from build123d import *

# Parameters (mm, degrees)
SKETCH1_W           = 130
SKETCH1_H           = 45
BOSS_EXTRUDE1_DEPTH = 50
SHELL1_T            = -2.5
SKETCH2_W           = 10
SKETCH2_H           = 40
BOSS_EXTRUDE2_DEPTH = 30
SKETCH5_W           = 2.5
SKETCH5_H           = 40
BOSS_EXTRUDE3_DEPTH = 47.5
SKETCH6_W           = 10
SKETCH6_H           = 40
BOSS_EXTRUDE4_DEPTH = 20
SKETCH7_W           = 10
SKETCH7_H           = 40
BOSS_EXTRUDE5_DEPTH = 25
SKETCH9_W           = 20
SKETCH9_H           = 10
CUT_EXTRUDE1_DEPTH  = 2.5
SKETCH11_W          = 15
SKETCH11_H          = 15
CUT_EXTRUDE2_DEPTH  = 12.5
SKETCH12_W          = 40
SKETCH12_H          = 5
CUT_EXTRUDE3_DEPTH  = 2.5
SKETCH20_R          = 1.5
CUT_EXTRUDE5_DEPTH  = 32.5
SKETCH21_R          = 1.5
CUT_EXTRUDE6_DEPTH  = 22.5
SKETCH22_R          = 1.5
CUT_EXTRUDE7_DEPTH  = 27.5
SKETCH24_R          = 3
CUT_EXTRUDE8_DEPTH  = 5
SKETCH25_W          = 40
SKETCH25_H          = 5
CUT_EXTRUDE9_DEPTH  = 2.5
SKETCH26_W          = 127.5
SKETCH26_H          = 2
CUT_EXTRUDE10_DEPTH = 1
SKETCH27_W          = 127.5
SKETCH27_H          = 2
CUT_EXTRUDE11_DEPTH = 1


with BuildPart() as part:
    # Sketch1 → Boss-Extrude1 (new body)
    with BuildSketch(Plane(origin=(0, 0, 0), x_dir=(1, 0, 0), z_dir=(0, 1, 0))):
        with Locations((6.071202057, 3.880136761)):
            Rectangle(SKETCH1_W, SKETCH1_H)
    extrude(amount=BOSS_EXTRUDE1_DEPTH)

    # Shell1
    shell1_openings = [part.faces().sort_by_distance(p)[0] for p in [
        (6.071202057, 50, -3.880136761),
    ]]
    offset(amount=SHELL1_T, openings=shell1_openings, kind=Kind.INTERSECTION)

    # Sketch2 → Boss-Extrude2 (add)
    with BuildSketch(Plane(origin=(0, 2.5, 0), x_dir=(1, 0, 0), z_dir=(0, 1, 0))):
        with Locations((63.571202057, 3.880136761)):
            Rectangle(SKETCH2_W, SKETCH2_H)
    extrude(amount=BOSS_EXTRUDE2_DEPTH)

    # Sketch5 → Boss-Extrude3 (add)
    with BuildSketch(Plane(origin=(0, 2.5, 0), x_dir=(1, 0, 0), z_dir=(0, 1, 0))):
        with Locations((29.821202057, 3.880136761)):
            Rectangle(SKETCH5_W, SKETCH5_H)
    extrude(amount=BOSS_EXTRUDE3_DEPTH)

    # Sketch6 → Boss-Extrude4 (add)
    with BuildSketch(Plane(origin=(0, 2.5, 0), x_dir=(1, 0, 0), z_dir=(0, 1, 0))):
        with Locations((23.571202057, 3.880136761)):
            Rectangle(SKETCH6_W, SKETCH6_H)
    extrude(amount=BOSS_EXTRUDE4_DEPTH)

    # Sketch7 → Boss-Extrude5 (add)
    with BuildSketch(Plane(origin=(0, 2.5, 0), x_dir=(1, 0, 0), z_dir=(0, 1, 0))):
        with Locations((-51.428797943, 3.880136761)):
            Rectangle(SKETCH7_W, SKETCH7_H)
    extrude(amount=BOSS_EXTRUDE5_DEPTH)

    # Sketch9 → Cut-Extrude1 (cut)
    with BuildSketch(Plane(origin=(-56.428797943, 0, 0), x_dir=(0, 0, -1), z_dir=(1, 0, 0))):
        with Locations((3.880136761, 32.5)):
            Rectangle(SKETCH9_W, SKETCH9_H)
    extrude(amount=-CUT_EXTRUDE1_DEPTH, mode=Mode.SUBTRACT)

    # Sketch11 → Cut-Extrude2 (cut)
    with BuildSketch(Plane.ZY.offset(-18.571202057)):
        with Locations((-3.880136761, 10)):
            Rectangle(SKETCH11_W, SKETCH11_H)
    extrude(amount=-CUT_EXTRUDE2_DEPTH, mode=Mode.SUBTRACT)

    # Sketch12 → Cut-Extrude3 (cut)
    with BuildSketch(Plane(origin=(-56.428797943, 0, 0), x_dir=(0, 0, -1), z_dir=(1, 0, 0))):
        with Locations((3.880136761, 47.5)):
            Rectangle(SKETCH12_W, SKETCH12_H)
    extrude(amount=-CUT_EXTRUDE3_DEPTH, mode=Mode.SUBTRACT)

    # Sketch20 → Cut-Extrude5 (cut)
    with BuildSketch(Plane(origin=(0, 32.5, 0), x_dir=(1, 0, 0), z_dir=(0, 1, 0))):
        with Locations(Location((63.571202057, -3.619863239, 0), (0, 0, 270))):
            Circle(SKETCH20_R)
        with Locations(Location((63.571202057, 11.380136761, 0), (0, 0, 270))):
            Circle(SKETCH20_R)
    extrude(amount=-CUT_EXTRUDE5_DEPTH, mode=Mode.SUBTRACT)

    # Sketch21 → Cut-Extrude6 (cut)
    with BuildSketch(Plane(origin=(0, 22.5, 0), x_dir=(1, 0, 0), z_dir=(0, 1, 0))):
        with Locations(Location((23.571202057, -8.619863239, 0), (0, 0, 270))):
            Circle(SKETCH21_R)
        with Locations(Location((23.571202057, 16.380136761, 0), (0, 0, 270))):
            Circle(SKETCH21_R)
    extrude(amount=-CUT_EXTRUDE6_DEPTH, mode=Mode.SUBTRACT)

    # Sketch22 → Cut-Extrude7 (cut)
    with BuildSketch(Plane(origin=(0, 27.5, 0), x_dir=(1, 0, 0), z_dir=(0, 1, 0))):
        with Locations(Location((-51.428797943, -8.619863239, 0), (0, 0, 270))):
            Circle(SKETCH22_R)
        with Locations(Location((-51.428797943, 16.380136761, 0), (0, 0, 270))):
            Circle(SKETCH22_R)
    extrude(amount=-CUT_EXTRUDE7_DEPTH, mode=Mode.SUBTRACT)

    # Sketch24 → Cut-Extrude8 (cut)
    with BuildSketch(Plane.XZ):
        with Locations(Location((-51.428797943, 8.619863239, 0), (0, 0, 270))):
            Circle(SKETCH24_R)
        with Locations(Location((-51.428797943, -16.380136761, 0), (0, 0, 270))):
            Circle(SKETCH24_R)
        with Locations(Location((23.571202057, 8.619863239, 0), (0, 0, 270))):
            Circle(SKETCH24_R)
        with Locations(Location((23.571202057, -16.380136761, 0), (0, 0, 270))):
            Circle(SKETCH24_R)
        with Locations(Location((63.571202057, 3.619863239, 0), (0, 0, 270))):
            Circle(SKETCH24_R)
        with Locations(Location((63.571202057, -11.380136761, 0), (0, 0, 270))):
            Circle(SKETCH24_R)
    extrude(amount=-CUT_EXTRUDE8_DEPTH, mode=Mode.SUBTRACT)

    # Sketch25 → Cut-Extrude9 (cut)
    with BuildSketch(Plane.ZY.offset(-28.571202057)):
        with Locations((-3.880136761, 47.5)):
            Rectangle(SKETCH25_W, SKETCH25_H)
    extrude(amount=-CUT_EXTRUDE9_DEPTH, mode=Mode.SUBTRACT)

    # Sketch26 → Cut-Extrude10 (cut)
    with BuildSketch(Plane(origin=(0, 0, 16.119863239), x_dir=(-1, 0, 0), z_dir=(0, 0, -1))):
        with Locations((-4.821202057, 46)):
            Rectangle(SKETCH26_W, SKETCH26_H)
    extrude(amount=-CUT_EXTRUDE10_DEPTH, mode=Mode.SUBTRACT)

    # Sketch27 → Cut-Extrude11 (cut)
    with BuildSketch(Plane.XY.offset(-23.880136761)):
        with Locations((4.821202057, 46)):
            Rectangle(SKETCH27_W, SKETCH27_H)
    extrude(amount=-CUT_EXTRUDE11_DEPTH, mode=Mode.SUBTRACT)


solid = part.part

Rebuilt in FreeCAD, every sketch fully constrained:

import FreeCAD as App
import Part
import Sketcher

V = App.Vector


def faces_at(feature, points):
    """Names of the faces that lie closest to the given points."""
    faces = feature.Shape.Faces
    near = lambda p: min(range(len(faces)), key=lambda i: faces[i].distToShape(Part.Vertex(*p))[0])
    return sorted({f"Face{near(p) + 1}" for p in points})


def add_polygon(sketch, points):
    """Adds a closed chain of lines whose ends are joined by coincident constraints."""
    first, n = sketch.GeometryCount, len(points)
    for a, b in zip(points, points[1:] + points[:1]):
        sketch.addGeometry(Part.LineSegment(App.Vector(*a, 0), App.Vector(*b, 0)), False)
    for i in range(n):
        sketch.addConstraint(Sketcher.Constraint("Coincident", first + i, 2, first + (i + 1) % n, 1))

doc = App.newDocument("Part")
params = doc.addObject("Spreadsheet::Sheet", "Params")
for row, (alias, value) in enumerate([
    ("sketch1_width", "130 mm"),
    ("sketch1_height", "45 mm"),
    ("pad1_length", "50 mm"),
    ("thickness_wall", "2.5 mm"),
    ("sketch2_width", "10 mm"),
    ("sketch2_height", "40 mm"),
    ("pad2_length", "30 mm"),
    ("sketch3_height", "40 mm"),
    ("sketch3_width", "2.5 mm"),
    ("pad3_length", "47.5 mm"),
    ("sketch4_width", "10 mm"),
    ("sketch4_height", "40 mm"),
    ("pad4_length", "20 mm"),
    ("sketch5_width", "10 mm"),
    ("sketch5_height", "40 mm"),
    ("pad5_length", "25 mm"),
    ("sketch6_width", "10 mm"),
    ("sketch6_height", "20 mm"),
    ("pocket1_length", "2.5 mm"),
    ("sketch7_width", "15 mm"),
    ("pocket2_length", "12.5 mm"),
    ("sketch8_width", "5 mm"),
    ("sketch8_height", "40 mm"),
    ("pocket3_length", "2.5 mm"),
    ("sketch9_diameter", "3 mm"),
    ("pocket4_length", "32.5 mm"),
    ("sketch10_diameter", "3 mm"),
    ("pocket5_length", "22.5 mm"),
    ("sketch11_diameter", "3 mm"),
    ("pocket6_length", "27.5 mm"),
    ("sketch12_diameter", "6 mm"),
    ("pocket7_length", "5 mm"),
    ("sketch13_width", "5 mm"),
    ("sketch13_height", "40 mm"),
    ("pocket8_length", "2.5 mm"),
    ("sketch14_height", "2 mm"),
    ("sketch14_width", "127.5 mm"),
    ("pocket9_length", "1 mm"),
    ("sketch15_height", "2 mm"),
    ("sketch15_width", "127.5 mm"),
    ("pocket10_length", "1 mm"),
], start=1):
    params.set(f"A{row}", alias)
    params.set(f"B{row}", "=" + value)
    params.setAlias(f"B{row}", alias)

body = doc.addObject("PartDesign::Body", "Body")

sketch1 = body.newObject("Sketcher::SketchObject", "Sketch")
sketch1.AttachmentSupport = (doc.getObject("XZ_Plane"), [""])
sketch1.MapMode = "FlatFace"
add_polygon(sketch1, [(-59, -26), (-59, 19), (71, 19), (71, -26)])
sketch1.addConstraint([
    Sketcher.Constraint("Vertical", 0),
    Sketcher.Constraint("Horizontal", 1),
    Sketcher.Constraint("Vertical", 2),
    Sketcher.Constraint("Horizontal", 3),
    Sketcher.Constraint("DistanceX", 1, 1, 1, 2, 130.0),
    Sketcher.Constraint("DistanceY", 0, 1, 0, 2, 45.0),
    Sketcher.Constraint("DistanceX", 0, 2, -1, 1, 58.928798),
    Sketcher.Constraint("DistanceY", -1, 1, 0, 2, 18.619863),
])
sketch1.setExpression("Constraints[8]", "Params.sketch1_width")
sketch1.setExpression("Constraints[9]", "Params.sketch1_height")
pad1 = body.newObject("PartDesign::Pad", "Pad")
pad1.Profile = sketch1
pad1.setExpression("Length", "Params.pad1_length")
pad1.Reversed = True
doc.recompute()

thickness = body.newObject("PartDesign::Thickness", "Thickness")
thickness.Base = (pad1, faces_at(pad1, [(6.071, 50, -3.88)]))
thickness.setExpression("Value", "Params.thickness_wall")
thickness.Reversed = True
thickness.Join = "Intersection"

sketch2 = body.newObject("Sketcher::SketchObject", "Sketch001")
sketch2.AttachmentSupport = (doc.getObject("XZ_Plane"), [""])
sketch2.MapMode = "FlatFace"
sketch2.AttachmentOffset = App.Placement(V(0, 0, -2.5), App.Rotation())
add_polygon(sketch2, [(59, -24), (59, 16), (69, 16), (69, -24)])
sketch2.addConstraint([
    Sketcher.Constraint("Vertical", 0),
    Sketcher.Constraint("Horizontal", 1),
    Sketcher.Constraint("Vertical", 2),
    Sketcher.Constraint("Horizontal", 3),
    Sketcher.Constraint("DistanceX", 1, 1, 1, 2, 10.0),
    Sketcher.Constraint("DistanceY", 0, 1, 0, 2, 40.0),
    Sketcher.Constraint("DistanceX", -1, 1, 0, 2, 58.571202),
    Sketcher.Constraint("DistanceY", -1, 1, 0, 2, 16.119863),
])
sketch2.setExpression("Constraints[8]", "Params.sketch2_width")
sketch2.setExpression("Constraints[9]", "Params.sketch2_height")
pad2 = body.newObject("PartDesign::Pad", "Pad001")
pad2.Profile = sketch2
pad2.setExpression("Length", "Params.pad2_length")
pad2.Reversed = True

sketch3 = body.newObject("Sketcher::SketchObject", "Sketch002")
sketch3.AttachmentSupport = (doc.getObject("XZ_Plane"), [""])
sketch3.MapMode = "FlatFace"
sketch3.AttachmentOffset = App.Placement(V(0, 0, -2.5), App.Rotation())
add_polygon(sketch3, [(28.6, -23.9), (28.6, 16.1), (31.1, 16.1), (31.1, -23.9)])
sketch3.addConstraint([
    Sketcher.Constraint("Vertical", 0),
    Sketcher.Constraint("Horizontal", 1),
    Sketcher.Constraint("Vertical", 2),
    Sketcher.Constraint("Horizontal", 3),
    Sketcher.Constraint("DistanceY", 0, 1, 0, 2, 40.0),
    Sketcher.Constraint("DistanceX", 1, 1, 1, 2, 2.5),
    Sketcher.Constraint("DistanceX", -1, 1, 0, 2, 28.571202),
    Sketcher.Constraint("DistanceY", -1, 1, 0, 2, 16.119863),
])
sketch3.setExpression("Constraints[8]", "Params.sketch3_height")
sketch3.setExpression("Constraints[9]", "Params.sketch3_width")
pad3 = body.newObject("PartDesign::Pad", "Pad002")
pad3.Profile = sketch3
pad3.setExpression("Length", "Params.pad3_length")
pad3.Reversed = True

sketch4 = body.newObject("Sketcher::SketchObject", "Sketch003")
sketch4.AttachmentSupport = (doc.getObject("XZ_Plane"), [""])
sketch4.MapMode = "FlatFace"
sketch4.AttachmentOffset = App.Placement(V(0, 0, -2.5), App.Rotation())
add_polygon(sketch4, [(19, -24), (19, 16), (29, 16), (29, -24)])
sketch4.addConstraint([
    Sketcher.Constraint("Vertical", 0),
    Sketcher.Constraint("Horizontal", 1),
    Sketcher.Constraint("Vertical", 2),
    Sketcher.Constraint("Horizontal", 3),
    Sketcher.Constraint("DistanceX", 1, 1, 1, 2, 10.0),
    Sketcher.Constraint("DistanceY", 0, 1, 0, 2, 40.0),
    Sketcher.Constraint("DistanceX", -1, 1, 0, 2, 18.571202),
    Sketcher.Constraint("DistanceY", -1, 1, 0, 2, 16.119863),
])
sketch4.setExpression("Constraints[8]", "Params.sketch4_width")
sketch4.setExpression("Constraints[9]", "Params.sketch4_height")
pad4 = body.newObject("PartDesign::Pad", "Pad003")
pad4.Profile = sketch4
pad4.setExpression("Length", "Params.pad4_length")
pad4.Reversed = True

sketch5 = body.newObject("Sketcher::SketchObject", "Sketch004")
sketch5.AttachmentSupport = (doc.getObject("XZ_Plane"), [""])
sketch5.MapMode = "FlatFace"
sketch5.AttachmentOffset = App.Placement(V(0, 0, -2.5), App.Rotation())
add_polygon(sketch5, [(-56, -24), (-56, 16), (-46, 16), (-46, -24)])
sketch5.addConstraint([
    Sketcher.Constraint("Vertical", 0),
    Sketcher.Constraint("Horizontal", 1),
    Sketcher.Constraint("Vertical", 2),
    Sketcher.Constraint("Horizontal", 3),
    Sketcher.Constraint("DistanceX", 1, 1, 1, 2, 10.0),
    Sketcher.Constraint("DistanceY", 0, 1, 0, 2, 40.0),
    Sketcher.Constraint("DistanceX", 0, 2, -1, 1, 56.428798),
    Sketcher.Constraint("DistanceY", -1, 1, 0, 2, 16.119863),
])
sketch5.setExpression("Constraints[8]", "Params.sketch5_width")
sketch5.setExpression("Constraints[9]", "Params.sketch5_height")
pad5 = body.newObject("PartDesign::Pad", "Pad004")
pad5.Profile = sketch5
pad5.setExpression("Length", "Params.pad5_length")
pad5.Reversed = True

sketch6 = body.newObject("Sketcher::SketchObject", "Sketch005")
sketch6.AttachmentSupport = (doc.getObject("YZ_Plane"), [""])
sketch6.MapMode = "FlatFace"
sketch6.AttachmentOffset = App.Placement(V(0, 0, -56.428798), App.Rotation())
add_polygon(sketch6, [(38, 6), (28, 6), (28, -14), (38, -14)])
sketch6.addConstraint([
    Sketcher.Constraint("Horizontal", 0),
    Sketcher.Constraint("Vertical", 1),
    Sketcher.Constraint("Horizontal", 2),
    Sketcher.Constraint("Vertical", 3),
    Sketcher.Constraint("DistanceX", 0, 2, 0, 1, 10.0),
    Sketcher.Constraint("DistanceY", 1, 2, 1, 1, 20.0),
    Sketcher.Constraint("DistanceX", -1, 1, 0, 2, 27.5),
    Sketcher.Constraint("DistanceY", -1, 1, 0, 2, 6.119863),
])
sketch6.setExpression("Constraints[8]", "Params.sketch6_width")
sketch6.setExpression("Constraints[9]", "Params.sketch6_height")
pocket1 = body.newObject("PartDesign::Pocket", "Pocket")
pocket1.Profile = sketch6
pocket1.setExpression("Length", "Params.pocket1_length")

sketch7 = body.newObject("Sketcher::SketchObject", "Sketch006")
sketch7.AttachmentSupport = (doc.getObject("YZ_Plane"), [""])
sketch7.MapMode = "FlatFace"
sketch7.AttachmentOffset = App.Placement(V(0, 0, 18.571202), App.Rotation())
add_polygon(sketch7, [(18, -11), (2, -11), (2, 4), (18, 4)])
sketch7.addConstraint([
    Sketcher.Constraint("Horizontal", 0),
    Sketcher.Constraint("Vertical", 1),
    Sketcher.Constraint("Horizontal", 2),
    Sketcher.Constraint("Vertical", 3),
    Sketcher.Constraint("Equal", 2, 1),
    Sketcher.Constraint("DistanceX", 0, 2, 0, 1, 15.0),
    Sketcher.Constraint("DistanceX", -1, 1, 0, 2, 2.5),
    Sketcher.Constraint("DistanceY", 0, 2, -1, 1, 11.380137),
])
sketch7.setExpression("Constraints[9]", "Params.sketch7_width")
pocket2 = body.newObject("PartDesign::Pocket", "Pocket001")
pocket2.Profile = sketch7
pocket2.setExpression("Length", "Params.pocket2_length")
pocket2.Reversed = True

sketch8 = body.newObject("Sketcher::SketchObject", "Sketch007")
sketch8.AttachmentSupport = (doc.getObject("YZ_Plane"), [""])
sketch8.MapMode = "FlatFace"
sketch8.AttachmentOffset = App.Placement(V(0, 0, -56.428798), App.Rotation())
add_polygon(sketch8, [(50, 16), (45, 16), (45, -24), (50, -24)])
sketch8.addConstraint([
    Sketcher.Constraint("Horizontal", 0),
    Sketcher.Constraint("Vertical", 1),
    Sketcher.Constraint("Horizontal", 2),
    Sketcher.Constraint("Vertical", 3),
    Sketcher.Constraint("DistanceX", 0, 2, 0, 1, 5.0),
    Sketcher.Constraint("DistanceY", 1, 2, 1, 1, 40.0),
    Sketcher.Constraint("DistanceX", -1, 1, 0, 2, 45.0),
    Sketcher.Constraint("DistanceY", -1, 1, 0, 2, 16.119863),
])
sketch8.setExpression("Constraints[8]", "Params.sketch8_width")
sketch8.setExpression("Constraints[9]", "Params.sketch8_height")
pocket3 = body.newObject("PartDesign::Pocket", "Pocket002")
pocket3.Profile = sketch8
pocket3.setExpression("Length", "Params.pocket3_length")

sketch9 = body.newObject("Sketcher::SketchObject", "Sketch008")
sketch9.AttachmentSupport = (doc.getObject("XZ_Plane"), [""])
sketch9.MapMode = "FlatFace"
sketch9.AttachmentOffset = App.Placement(V(0, 0, -32.5), App.Rotation())
sketch9.addGeometry([
    Part.Circle(V(63.6, 3.6, 0), V(0, 0, 1), 1.5),
    Part.Circle(V(63.6, -11.4, 0), V(0, 0, 1), 1.5),
], False)
sketch9.addConstraint([
    Sketcher.Constraint("Equal", 0, 1),
    Sketcher.Constraint("Vertical", 0, 3, 1, 3),
    Sketcher.Constraint("Diameter", 0, 3.0),
    Sketcher.Constraint("DistanceY", 1, 3, 0, 3, 15.0),
    Sketcher.Constraint("DistanceX", -1, 1, 0, 3, 63.571202),
    Sketcher.Constraint("DistanceY", -1, 1, 0, 3, 3.619863),
])
sketch9.setExpression("Constraints[2]", "Params.sketch9_diameter")
pocket4 = body.newObject("PartDesign::Pocket", "Pocket003")
pocket4.Profile = sketch9
pocket4.setExpression("Length", "Params.pocket4_length")
pocket4.Reversed = True

sketch10 = body.newObject("Sketcher::SketchObject", "Sketch009")
sketch10.AttachmentSupport = (doc.getObject("XZ_Plane"), [""])
sketch10.MapMode = "FlatFace"
sketch10.AttachmentOffset = App.Placement(V(0, 0, -22.5), App.Rotation())
sketch10.addGeometry([
    Part.Circle(V(23.6, 8.6, 0), V(0, 0, 1), 1.5),
    Part.Circle(V(23.6, -16.4, 0), V(0, 0, 1), 1.5),
], False)
sketch10.addConstraint([
    Sketcher.Constraint("Equal", 0, 1),
    Sketcher.Constraint("Vertical", 0, 3, 1, 3),
    Sketcher.Constraint("Diameter", 0, 3.0),
    Sketcher.Constraint("DistanceY", 1, 3, 0, 3, 25.0),
    Sketcher.Constraint("DistanceX", -1, 1, 0, 3, 23.571202),
    Sketcher.Constraint("DistanceY", -1, 1, 0, 3, 8.619863),
])
sketch10.setExpression("Constraints[2]", "Params.sketch10_diameter")
pocket5 = body.newObject("PartDesign::Pocket", "Pocket004")
pocket5.Profile = sketch10
pocket5.setExpression("Length", "Params.pocket5_length")
pocket5.Reversed = True

sketch11 = body.newObject("Sketcher::SketchObject", "Sketch010")
sketch11.AttachmentSupport = (doc.getObject("XZ_Plane"), [""])
sketch11.MapMode = "FlatFace"
sketch11.AttachmentOffset = App.Placement(V(0, 0, -27.5), App.Rotation())
sketch11.addGeometry([
    Part.Circle(V(-51.4, 8.6, 0), V(0, 0, 1), 1.5),
    Part.Circle(V(-51.4, -16.4, 0), V(0, 0, 1), 1.5),
], False)
sketch11.addConstraint([
    Sketcher.Constraint("Equal", 0, 1),
    Sketcher.Constraint("Vertical", 0, 3, 1, 3),
    Sketcher.Constraint("Diameter", 0, 3.0),
    Sketcher.Constraint("DistanceY", 1, 3, 0, 3, 25.0),
    Sketcher.Constraint("DistanceX", 0, 3, -1, 1, 51.428798),
    Sketcher.Constraint("DistanceY", -1, 1, 0, 3, 8.619863),
])
sketch11.setExpression("Constraints[2]", "Params.sketch11_diameter")
pocket6 = body.newObject("PartDesign::Pocket", "Pocket005")
pocket6.Profile = sketch11
pocket6.setExpression("Length", "Params.pocket6_length")
pocket6.Reversed = True

sketch12 = body.newObject("Sketcher::SketchObject", "Sketch011")
sketch12.AttachmentSupport = (doc.getObject("XZ_Plane"), [""])
sketch12.MapMode = "FlatFace"
sketch12.addGeometry([
    Part.Circle(V(-51.4, 8.6, 0), V(0, 0, 1), 3),
    Part.Circle(V(-51.4, -16.4, 0), V(0, 0, 1), 3),
    Part.Circle(V(23.6, 8.6, 0), V(0, 0, 1), 3),
    Part.Circle(V(23.6, -16.4, 0), V(0, 0, 1), 3),
    Part.Circle(V(63.6, 3.6, 0), V(0, 0, 1), 3),
    Part.Circle(V(63.6, -11.4, 0), V(0, 0, 1), 3),
], False)
sketch12.addConstraint([
    Sketcher.Constraint("Equal", 0, 1),
    Sketcher.Constraint("Equal", 1, 2),
    Sketcher.Constraint("Equal", 2, 3),
    Sketcher.Constraint("Equal", 3, 4),
    Sketcher.Constraint("Equal", 4, 5),
    Sketcher.Constraint("Horizontal", 0, 3, 2, 3),
    Sketcher.Constraint("Horizontal", 1, 3, 3, 3),
    Sketcher.Constraint("Vertical", 0, 3, 1, 3),
    Sketcher.Constraint("Vertical", 2, 3, 3, 3),
    Sketcher.Constraint("Vertical", 4, 3, 5, 3),
    Sketcher.Constraint("Diameter", 0, 6.0),
    Sketcher.Constraint("DistanceY", 1, 3, 0, 3, 25.0),
    Sketcher.Constraint("DistanceX", 0, 3, 2, 3, 75.0),
    Sketcher.Constraint("DistanceX", 2, 3, 4, 3, 40.0),
    Sketcher.Constraint("DistanceY", 4, 3, 2, 3, 5.0),
    Sketcher.Constraint("DistanceY", 5, 3, 4, 3, 15.0),
    Sketcher.Constraint("DistanceX", 0, 3, -1, 1, 51.428798),
    Sketcher.Constraint("DistanceY", -1, 1, 0, 3, 8.619863),
])
sketch12.setExpression("Constraints[10]", "Params.sketch12_diameter")
pocket7 = body.newObject("PartDesign::Pocket", "Pocket006")
pocket7.Profile = sketch12
pocket7.setExpression("Length", "Params.pocket7_length")

sketch13 = body.newObject("Sketcher::SketchObject", "Sketch012")
sketch13.AttachmentSupport = (doc.getObject("YZ_Plane"), [""])
sketch13.MapMode = "FlatFace"
sketch13.AttachmentOffset = App.Placement(V(0, 0, 28.571202), App.Rotation())
add_polygon(sketch13, [(50, -24), (45, -24), (45, 16), (50, 16)])
sketch13.addConstraint([
    Sketcher.Constraint("Horizontal", 0),
    Sketcher.Constraint("Vertical", 1),
    Sketcher.Constraint("Horizontal", 2),
    Sketcher.Constraint("Vertical", 3),
    Sketcher.Constraint("DistanceX", 0, 2, 0, 1, 5.0),
    Sketcher.Constraint("DistanceY", 1, 1, 1, 2, 40.0),
    Sketcher.Constraint("DistanceX", -1, 1, 0, 2, 45.0),
    Sketcher.Constraint("DistanceY", 0, 2, -1, 1, 23.880137),
])
sketch13.setExpression("Constraints[8]", "Params.sketch13_width")
sketch13.setExpression("Constraints[9]", "Params.sketch13_height")
pocket8 = body.newObject("PartDesign::Pocket", "Pocket007")
pocket8.Profile = sketch13
pocket8.setExpression("Length", "Params.pocket8_length")
pocket8.Reversed = True

sketch14 = body.newObject("Sketcher::SketchObject", "Sketch013")
sketch14.AttachmentSupport = (doc.getObject("XY_Plane"), [""])
sketch14.MapMode = "FlatFace"
sketch14.AttachmentOffset = App.Placement(V(0, 0, 16.119863), App.Rotation())
add_polygon(sketch14, [(68.6, 47), (68.6, 45), (-58.9, 45), (-58.9, 47)])
sketch14.addConstraint([
    Sketcher.Constraint("Vertical", 0),
    Sketcher.Constraint("Horizontal", 1),
    Sketcher.Constraint("Vertical", 2),
    Sketcher.Constraint("Horizontal", 3),
    Sketcher.Constraint("DistanceY", 0, 2, 0, 1, 2.0),
    Sketcher.Constraint("DistanceX", 1, 2, 1, 1, 127.5),
    Sketcher.Constraint("DistanceY", -1, 1, 0, 2, 45.0),
    Sketcher.Constraint("DistanceX", -1, 1, 0, 2, 68.571202),
])
sketch14.setExpression("Constraints[8]", "Params.sketch14_height")
sketch14.setExpression("Constraints[9]", "Params.sketch14_width")
pocket9 = body.newObject("PartDesign::Pocket", "Pocket008")
pocket9.Profile = sketch14
pocket9.setExpression("Length", "Params.pocket9_length")
pocket9.Reversed = True

sketch15 = body.newObject("Sketcher::SketchObject", "Sketch014")
sketch15.AttachmentSupport = (doc.getObject("XY_Plane"), [""])
sketch15.MapMode = "FlatFace"
sketch15.AttachmentOffset = App.Placement(V(0, 0, -23.880137), App.Rotation())
add_polygon(sketch15, [(-58.9, 47), (-58.9, 45), (68.6, 45), (68.6, 47)])
sketch15.addConstraint([
    Sketcher.Constraint("Vertical", 0),
    Sketcher.Constraint("Horizontal", 1),
    Sketcher.Constraint("Vertical", 2),
    Sketcher.Constraint("Horizontal", 3),
    Sketcher.Constraint("DistanceY", 0, 2, 0, 1, 2.0),
    Sketcher.Constraint("DistanceX", 1, 1, 1, 2, 127.5),
    Sketcher.Constraint("DistanceY", -1, 1, 0, 2, 45.0),
    Sketcher.Constraint("DistanceX", 0, 2, -1, 1, 58.928798),
])
sketch15.setExpression("Constraints[8]", "Params.sketch15_height")
sketch15.setExpression("Constraints[9]", "Params.sketch15_width")
pocket10 = body.newObject("PartDesign::Pocket", "Pocket009")
pocket10.Profile = sketch15
pocket10.setExpression("Length", "Params.pocket10_length")

doc.recompute()
